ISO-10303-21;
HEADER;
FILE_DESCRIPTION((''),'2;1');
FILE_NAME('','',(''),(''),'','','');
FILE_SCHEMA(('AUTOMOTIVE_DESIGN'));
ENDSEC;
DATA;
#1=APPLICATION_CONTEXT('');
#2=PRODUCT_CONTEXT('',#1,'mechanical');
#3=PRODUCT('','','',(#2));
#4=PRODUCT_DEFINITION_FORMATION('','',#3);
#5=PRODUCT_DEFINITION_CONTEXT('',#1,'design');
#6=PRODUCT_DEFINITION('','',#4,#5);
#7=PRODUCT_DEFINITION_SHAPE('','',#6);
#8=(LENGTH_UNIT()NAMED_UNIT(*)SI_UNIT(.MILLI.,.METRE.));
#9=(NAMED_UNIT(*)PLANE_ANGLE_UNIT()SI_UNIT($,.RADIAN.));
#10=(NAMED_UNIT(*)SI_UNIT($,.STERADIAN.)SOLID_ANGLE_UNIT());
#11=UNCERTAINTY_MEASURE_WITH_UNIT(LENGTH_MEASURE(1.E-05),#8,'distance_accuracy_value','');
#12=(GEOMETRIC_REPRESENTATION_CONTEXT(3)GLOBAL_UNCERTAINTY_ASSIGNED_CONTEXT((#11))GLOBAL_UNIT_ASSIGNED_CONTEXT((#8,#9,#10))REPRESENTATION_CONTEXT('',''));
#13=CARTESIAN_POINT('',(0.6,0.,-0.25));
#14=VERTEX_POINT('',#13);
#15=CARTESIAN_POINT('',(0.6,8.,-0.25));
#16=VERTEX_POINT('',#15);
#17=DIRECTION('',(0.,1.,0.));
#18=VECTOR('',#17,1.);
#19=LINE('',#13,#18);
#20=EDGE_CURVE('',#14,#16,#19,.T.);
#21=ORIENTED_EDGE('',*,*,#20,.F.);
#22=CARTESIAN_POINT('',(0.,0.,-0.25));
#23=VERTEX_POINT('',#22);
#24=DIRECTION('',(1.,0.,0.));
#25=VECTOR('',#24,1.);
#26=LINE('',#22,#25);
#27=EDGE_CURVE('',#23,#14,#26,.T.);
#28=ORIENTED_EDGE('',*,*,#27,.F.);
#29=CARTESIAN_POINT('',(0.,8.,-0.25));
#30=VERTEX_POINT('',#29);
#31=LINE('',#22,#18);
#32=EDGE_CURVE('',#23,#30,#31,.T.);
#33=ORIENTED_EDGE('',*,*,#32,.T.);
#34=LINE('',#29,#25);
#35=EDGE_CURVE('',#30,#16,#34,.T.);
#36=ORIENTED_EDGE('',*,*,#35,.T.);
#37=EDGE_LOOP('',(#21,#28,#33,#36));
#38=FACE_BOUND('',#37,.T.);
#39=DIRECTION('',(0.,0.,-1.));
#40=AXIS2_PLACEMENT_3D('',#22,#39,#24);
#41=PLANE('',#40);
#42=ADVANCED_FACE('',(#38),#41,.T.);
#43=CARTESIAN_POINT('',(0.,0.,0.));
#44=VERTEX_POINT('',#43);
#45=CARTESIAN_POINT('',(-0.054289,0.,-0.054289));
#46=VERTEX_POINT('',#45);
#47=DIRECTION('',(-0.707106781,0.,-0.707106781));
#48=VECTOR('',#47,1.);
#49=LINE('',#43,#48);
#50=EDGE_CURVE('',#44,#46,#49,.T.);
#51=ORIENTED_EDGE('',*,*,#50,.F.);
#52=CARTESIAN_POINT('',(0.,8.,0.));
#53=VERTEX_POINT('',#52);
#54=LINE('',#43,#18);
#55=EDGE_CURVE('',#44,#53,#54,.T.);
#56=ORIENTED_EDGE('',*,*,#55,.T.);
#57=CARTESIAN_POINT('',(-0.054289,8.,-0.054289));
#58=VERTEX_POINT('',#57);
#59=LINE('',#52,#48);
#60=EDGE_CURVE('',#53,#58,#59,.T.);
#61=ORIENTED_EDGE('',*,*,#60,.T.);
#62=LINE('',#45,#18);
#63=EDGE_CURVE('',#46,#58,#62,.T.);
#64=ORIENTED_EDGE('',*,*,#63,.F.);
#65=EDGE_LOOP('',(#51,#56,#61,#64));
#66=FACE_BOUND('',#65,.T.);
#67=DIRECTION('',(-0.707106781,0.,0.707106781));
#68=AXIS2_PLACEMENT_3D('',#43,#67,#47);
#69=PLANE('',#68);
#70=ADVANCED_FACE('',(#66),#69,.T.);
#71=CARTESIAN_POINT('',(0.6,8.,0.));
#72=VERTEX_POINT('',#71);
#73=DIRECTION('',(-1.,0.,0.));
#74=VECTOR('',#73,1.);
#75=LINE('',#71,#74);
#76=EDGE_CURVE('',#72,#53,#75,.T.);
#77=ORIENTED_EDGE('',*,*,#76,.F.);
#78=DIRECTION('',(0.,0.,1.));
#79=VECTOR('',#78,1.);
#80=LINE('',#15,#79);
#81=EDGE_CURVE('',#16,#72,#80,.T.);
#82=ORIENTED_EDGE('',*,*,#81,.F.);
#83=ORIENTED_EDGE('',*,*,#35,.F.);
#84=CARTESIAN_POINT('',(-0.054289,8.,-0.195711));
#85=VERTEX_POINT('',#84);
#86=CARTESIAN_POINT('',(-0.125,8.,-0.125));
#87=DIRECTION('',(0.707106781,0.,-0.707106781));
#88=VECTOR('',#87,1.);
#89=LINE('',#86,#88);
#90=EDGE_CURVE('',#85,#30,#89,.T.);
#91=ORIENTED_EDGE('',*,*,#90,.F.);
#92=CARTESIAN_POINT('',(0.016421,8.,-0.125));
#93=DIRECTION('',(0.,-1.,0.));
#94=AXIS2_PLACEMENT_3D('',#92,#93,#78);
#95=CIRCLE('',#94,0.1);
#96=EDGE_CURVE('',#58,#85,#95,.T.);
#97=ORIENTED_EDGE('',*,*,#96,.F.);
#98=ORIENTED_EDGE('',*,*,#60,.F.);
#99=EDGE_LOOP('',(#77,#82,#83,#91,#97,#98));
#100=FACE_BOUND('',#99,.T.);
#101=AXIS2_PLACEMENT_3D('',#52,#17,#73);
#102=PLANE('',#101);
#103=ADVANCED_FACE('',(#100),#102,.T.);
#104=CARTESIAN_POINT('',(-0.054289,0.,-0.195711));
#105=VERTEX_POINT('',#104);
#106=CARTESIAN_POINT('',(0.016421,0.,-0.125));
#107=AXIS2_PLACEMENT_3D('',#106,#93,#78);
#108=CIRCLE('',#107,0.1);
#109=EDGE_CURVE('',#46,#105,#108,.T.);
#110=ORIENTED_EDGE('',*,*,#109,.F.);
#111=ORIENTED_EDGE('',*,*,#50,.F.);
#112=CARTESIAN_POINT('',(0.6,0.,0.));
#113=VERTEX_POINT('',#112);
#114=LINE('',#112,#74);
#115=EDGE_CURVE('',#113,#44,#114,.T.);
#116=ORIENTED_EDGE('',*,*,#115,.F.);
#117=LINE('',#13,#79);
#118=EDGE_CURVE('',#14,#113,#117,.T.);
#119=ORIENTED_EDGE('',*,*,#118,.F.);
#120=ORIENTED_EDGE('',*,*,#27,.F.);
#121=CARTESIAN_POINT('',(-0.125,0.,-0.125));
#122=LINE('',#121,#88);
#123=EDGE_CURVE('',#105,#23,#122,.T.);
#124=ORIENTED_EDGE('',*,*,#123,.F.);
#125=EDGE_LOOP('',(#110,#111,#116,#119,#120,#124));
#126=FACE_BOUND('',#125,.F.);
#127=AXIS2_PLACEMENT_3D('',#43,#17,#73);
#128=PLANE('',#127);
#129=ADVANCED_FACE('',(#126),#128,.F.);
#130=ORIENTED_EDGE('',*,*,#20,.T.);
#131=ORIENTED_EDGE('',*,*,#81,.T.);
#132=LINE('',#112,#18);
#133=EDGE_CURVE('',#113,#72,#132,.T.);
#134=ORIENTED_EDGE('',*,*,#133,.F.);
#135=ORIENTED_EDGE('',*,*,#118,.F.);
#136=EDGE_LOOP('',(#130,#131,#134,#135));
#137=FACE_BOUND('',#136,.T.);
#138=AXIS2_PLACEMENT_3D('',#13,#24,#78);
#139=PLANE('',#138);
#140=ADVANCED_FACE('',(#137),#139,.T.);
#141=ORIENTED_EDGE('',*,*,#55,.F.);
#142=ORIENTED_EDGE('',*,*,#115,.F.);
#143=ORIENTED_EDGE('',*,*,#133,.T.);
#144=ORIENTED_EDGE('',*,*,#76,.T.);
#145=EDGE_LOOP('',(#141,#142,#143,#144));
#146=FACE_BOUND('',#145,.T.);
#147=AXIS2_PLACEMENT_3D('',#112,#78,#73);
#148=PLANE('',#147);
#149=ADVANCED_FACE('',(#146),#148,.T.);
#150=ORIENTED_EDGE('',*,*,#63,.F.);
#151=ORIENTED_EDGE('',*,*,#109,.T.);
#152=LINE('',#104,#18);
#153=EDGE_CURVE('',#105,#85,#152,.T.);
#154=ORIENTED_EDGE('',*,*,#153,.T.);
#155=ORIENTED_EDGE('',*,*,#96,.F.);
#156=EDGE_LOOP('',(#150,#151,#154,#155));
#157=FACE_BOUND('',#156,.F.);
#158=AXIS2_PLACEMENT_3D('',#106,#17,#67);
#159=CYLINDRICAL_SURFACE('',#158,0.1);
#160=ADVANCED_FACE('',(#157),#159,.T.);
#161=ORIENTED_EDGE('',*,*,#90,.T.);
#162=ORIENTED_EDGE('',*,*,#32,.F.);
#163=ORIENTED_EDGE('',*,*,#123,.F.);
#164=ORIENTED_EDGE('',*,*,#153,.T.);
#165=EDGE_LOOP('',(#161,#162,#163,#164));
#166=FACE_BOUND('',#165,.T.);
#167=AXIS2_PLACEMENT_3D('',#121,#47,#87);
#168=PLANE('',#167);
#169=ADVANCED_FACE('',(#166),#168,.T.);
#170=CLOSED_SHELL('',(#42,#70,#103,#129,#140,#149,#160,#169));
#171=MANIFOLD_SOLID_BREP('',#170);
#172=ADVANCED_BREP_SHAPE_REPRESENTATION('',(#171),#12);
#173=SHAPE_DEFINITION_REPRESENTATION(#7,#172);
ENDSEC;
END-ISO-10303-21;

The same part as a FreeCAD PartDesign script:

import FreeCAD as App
import Part
import Sketcher

V = App.Vector
Q = App.Units.Quantity


def edges_at(feature, points):
    """Names of the edges that pass closest to the given points."""
    edges = feature.Shape.Edges
    near = lambda p: min(range(len(edges)), key=lambda i: edges[i].distToShape(Part.Vertex(*p))[0])
    return sorted({f"Edge{near(p) + 1}" for p in points})

doc = App.newDocument("Part")
body = doc.addObject("PartDesign::Body", "Body")

# Sketch on XZ plane
sketch1 = doc.addObject("Sketcher::SketchObject", "Sketch")
body.addObject(sketch1)
sketch1.AttachmentSupport = (doc.XZ_Plane, [""])
sketch1.MapMode = "FlatFace"
sketch1.addGeometry([
    Part.LineSegment(V(-0.125, -0.125, 0), V(0, 0, 0)),  # 0
    Part.LineSegment(V(0, 0, 0), V(0.6, 0, 0)),  # 1
    Part.LineSegment(V(0.6, 0, 0), V(0.6, -0.25, 0)),  # 2
    Part.LineSegment(V(0.6, -0.25, 0), V(0, -0.25, 0)),  # 3
    Part.LineSegment(V(0, -0.25, 0), V(-0.125, -0.125, 0)),  # 4
], False)
sketch1.addConstraint([
    Sketcher.Constraint("Coincident", 0, 2, 1, 1),
    Sketcher.Constraint("Coincident", 1, 2, 2, 1),
    Sketcher.Constraint("Coincident", 2, 2, 3, 1),
    Sketcher.Constraint("Coincident", 3, 2, 4, 1),
    Sketcher.Constraint("Coincident", 4, 2, 0, 1),
    Sketcher.Constraint("Horizontal", 1),
    Sketcher.Constraint("Vertical", 2),
    Sketcher.Constraint("Horizontal", 3),
    Sketcher.Constraint("Coincident", 0, 2, -1, 1),
    Sketcher.Constraint("PointOnObject", 3, 2, -2),
    Sketcher.Constraint("Perpendicular", 0, 4),
    Sketcher.Constraint("Equal", 0, 4),
    Sketcher.Constraint("DistanceX", 1, 1, 1, 2, Q("0.6 mm")),
    Sketcher.Constraint("DistanceY", 2, 2, 2, 1, Q("0.25 mm")),
])
pad1 = doc.addObject("PartDesign::Pad", "Pad")
body.addObject(pad1)
pad1.Profile = sketch1
pad1.Length = 8
pad1.Reversed = True
doc.recompute()

fillet = doc.addObject("PartDesign::Fillet", "Fillet")
body.addObject(fillet)
fillet.Base = (pad1, edges_at(pad1, [(-0.125, 4, -0.125)]))
fillet.Radius = 0.1

doc.recompute()
